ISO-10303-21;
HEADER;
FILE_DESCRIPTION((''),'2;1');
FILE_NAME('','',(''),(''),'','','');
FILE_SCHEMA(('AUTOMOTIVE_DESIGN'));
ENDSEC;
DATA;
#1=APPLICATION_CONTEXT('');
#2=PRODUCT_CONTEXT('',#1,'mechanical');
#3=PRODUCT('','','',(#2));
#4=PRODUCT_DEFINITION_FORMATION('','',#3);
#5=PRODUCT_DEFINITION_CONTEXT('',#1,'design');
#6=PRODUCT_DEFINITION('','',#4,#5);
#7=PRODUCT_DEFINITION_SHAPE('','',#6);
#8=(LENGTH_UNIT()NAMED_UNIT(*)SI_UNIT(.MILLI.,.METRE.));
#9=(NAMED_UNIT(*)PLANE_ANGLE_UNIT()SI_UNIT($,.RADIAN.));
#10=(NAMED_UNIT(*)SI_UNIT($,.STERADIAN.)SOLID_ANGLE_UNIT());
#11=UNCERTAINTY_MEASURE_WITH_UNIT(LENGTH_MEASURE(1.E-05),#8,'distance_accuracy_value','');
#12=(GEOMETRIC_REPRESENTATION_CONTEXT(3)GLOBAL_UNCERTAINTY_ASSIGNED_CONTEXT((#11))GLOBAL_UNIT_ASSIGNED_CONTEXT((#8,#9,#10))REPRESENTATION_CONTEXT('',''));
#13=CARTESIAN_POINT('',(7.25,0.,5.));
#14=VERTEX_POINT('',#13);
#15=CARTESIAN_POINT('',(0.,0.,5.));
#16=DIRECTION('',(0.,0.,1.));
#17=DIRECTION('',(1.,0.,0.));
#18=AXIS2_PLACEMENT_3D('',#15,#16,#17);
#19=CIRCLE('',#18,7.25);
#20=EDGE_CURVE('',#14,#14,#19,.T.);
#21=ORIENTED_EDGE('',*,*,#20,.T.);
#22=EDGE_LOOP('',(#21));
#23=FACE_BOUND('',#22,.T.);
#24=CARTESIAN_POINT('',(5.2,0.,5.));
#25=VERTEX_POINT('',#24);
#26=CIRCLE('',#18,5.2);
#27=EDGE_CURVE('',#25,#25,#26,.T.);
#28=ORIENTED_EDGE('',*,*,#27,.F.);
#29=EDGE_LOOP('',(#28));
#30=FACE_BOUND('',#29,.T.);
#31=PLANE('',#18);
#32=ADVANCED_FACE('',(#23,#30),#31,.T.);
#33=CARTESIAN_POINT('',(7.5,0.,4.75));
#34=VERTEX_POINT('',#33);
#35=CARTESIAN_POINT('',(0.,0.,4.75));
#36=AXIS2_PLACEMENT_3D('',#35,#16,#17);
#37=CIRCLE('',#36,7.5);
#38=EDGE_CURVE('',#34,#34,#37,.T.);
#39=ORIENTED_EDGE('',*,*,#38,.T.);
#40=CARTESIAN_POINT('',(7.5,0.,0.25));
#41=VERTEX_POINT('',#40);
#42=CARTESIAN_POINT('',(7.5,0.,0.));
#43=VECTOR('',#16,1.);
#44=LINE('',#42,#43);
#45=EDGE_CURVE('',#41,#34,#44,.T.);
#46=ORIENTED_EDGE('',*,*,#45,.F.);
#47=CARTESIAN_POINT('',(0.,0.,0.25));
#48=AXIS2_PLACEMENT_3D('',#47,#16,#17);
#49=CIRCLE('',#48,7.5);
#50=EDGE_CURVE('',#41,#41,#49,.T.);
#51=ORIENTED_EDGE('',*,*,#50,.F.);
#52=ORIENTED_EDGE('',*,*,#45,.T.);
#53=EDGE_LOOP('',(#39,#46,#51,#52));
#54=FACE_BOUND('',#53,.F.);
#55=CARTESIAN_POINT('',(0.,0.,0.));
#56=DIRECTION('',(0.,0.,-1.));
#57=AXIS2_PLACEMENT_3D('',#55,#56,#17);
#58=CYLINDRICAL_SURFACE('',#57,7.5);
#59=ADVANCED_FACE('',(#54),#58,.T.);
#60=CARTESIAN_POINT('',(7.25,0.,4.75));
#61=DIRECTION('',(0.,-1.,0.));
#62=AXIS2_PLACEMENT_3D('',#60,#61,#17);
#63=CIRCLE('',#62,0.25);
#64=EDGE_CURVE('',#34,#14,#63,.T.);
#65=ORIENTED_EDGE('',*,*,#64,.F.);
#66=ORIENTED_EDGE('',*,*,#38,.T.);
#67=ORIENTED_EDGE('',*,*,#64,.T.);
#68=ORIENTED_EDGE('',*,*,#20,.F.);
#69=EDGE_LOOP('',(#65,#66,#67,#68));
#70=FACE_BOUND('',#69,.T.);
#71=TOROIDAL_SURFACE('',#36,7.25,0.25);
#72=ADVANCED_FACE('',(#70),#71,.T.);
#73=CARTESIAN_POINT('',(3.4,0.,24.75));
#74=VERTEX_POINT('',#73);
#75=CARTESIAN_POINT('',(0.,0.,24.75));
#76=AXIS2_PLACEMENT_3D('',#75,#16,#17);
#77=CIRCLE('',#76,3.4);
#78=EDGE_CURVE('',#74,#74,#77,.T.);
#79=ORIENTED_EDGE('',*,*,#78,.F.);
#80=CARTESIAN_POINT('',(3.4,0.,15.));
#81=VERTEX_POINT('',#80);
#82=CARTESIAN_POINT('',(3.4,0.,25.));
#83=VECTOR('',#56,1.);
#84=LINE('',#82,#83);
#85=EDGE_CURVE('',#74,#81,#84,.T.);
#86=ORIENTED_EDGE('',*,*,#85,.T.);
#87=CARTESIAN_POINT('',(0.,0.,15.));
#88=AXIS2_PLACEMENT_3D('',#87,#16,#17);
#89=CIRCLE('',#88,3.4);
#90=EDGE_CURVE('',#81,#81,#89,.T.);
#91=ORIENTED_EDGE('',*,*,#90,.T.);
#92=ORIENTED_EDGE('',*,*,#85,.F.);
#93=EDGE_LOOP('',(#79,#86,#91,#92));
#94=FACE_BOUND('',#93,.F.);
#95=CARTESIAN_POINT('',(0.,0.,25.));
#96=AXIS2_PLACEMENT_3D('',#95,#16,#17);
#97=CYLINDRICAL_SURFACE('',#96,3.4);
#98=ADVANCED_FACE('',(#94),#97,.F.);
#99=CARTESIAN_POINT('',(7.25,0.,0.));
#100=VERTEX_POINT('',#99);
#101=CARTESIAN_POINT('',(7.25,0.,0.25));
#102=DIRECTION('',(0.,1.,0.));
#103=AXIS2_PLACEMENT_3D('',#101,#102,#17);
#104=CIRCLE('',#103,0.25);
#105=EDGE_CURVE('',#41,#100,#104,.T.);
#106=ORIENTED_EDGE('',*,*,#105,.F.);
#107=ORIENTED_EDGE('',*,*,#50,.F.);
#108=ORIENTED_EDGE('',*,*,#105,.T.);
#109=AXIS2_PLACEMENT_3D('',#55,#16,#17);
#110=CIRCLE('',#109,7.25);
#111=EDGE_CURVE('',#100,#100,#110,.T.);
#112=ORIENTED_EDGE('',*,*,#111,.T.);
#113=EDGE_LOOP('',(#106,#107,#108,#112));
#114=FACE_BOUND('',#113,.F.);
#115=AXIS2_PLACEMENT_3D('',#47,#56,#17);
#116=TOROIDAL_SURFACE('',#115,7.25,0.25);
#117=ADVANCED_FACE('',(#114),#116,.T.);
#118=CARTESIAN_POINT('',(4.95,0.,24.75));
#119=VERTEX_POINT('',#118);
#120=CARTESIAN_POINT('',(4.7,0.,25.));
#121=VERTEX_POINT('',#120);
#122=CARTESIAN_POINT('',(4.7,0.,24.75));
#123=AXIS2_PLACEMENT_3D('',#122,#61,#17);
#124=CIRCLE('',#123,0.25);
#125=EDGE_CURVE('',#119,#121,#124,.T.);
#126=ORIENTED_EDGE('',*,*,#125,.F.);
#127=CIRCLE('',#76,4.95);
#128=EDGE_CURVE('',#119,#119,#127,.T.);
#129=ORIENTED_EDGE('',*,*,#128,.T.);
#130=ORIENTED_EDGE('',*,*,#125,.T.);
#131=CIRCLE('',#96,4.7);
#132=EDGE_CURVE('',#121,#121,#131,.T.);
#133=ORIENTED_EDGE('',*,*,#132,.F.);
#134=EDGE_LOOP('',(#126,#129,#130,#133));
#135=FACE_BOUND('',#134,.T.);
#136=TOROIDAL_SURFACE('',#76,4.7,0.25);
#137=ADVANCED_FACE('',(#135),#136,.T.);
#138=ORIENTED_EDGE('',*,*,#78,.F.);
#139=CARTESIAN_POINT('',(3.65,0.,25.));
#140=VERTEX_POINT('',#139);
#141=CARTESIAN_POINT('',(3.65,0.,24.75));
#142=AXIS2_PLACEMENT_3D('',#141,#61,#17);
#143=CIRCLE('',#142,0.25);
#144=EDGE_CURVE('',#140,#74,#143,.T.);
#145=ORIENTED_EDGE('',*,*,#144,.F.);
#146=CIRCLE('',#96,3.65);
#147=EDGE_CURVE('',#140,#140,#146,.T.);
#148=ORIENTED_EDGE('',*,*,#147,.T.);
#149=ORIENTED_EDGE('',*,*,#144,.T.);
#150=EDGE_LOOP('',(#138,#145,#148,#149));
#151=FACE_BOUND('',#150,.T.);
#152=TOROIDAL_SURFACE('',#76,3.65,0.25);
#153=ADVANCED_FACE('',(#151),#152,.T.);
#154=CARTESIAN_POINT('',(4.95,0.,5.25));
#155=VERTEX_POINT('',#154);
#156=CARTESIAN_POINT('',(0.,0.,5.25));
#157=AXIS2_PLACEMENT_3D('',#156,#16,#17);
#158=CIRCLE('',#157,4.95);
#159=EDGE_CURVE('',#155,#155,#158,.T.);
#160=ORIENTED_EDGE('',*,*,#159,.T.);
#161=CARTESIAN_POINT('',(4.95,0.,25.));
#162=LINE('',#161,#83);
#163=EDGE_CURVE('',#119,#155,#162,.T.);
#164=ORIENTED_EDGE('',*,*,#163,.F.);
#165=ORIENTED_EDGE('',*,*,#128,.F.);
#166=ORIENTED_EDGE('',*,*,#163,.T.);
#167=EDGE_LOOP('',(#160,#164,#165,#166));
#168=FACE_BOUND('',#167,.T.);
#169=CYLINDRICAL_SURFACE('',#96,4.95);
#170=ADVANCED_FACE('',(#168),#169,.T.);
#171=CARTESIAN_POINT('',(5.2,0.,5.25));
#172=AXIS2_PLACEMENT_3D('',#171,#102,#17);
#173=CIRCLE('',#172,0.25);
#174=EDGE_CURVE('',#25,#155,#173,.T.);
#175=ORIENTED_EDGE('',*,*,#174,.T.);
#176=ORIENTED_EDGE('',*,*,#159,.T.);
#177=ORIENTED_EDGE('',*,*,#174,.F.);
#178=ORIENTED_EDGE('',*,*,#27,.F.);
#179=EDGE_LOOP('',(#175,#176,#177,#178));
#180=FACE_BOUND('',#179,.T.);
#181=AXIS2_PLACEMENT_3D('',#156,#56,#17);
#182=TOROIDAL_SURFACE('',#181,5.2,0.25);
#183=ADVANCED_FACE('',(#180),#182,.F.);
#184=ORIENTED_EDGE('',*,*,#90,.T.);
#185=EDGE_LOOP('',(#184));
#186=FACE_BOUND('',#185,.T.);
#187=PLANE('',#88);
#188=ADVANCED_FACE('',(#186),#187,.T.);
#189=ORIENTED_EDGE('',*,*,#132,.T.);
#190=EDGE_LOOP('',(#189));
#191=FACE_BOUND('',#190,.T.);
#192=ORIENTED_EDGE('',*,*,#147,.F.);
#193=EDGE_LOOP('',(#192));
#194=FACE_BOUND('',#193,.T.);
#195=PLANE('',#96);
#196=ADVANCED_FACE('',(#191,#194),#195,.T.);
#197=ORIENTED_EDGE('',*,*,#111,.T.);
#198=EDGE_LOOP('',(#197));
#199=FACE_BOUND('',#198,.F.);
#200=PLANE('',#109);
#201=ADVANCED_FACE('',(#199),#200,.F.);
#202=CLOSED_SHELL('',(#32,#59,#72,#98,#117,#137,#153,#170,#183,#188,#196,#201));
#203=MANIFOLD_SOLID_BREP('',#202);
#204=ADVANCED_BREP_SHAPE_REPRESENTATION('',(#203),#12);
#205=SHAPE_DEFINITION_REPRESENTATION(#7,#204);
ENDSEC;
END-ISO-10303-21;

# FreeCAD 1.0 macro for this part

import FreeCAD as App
import Part
import Sketcher

V = App.Vector
Q = App.Units.Quantity


def edges_at(feature, points):
    """Names of the edges that pass closest to the given points."""
    edges = feature.Shape.Edges
    near = lambda p: min(range(len(edges)), key=lambda i: edges[i].distToShape(Part.Vertex(*p))[0])
    return sorted({f"Edge{near(p) + 1}" for p in points})

doc = App.newDocument("Part")
body = doc.addObject("PartDesign::Body", "Body")

# Sketch on XY plane
sketch1 = body.newObject("Sketcher::SketchObject", "Sketch")
sketch1.AttachmentSupport = (doc.getObject("XY_Plane"), [""])
sketch1.MapMode = "FlatFace"
sketch1.addGeometry(Part.Circle(V(0, 0, 0), V(0, 0, 1), 8), False)
sketch1.addConstraint([
    Sketcher.Constraint("Coincident", 0, 3, -1, 1),
    Sketcher.Constraint("Diameter", 0, Q("15 mm")),
])
pad1 = body.newObject("PartDesign::Pad", "Pad")
pad1.Profile = sketch1
pad1.Length = 25

# Sketch on XY plane
sketch2 = body.newObject("Sketcher::SketchObject", "Sketch001")
sketch2.AttachmentSupport = (doc.getObject("XY_Plane"), [""])
sketch2.MapMode = "FlatFace"
sketch2.AttachmentOffset = App.Placement(V(0, 0, 25), App.Rotation())
sketch2.addGeometry([
    Part.Circle(V(0, 0, 0), V(0, 0, 1), 7.5),
    Part.Circle(V(0, 0, 0), V(0, 0, 1), 5),
], False)
sketch2.addConstraint([
    Sketcher.Constraint("Coincident", 0, 3, -1, 1),
    Sketcher.Constraint("Coincident", 1, 3, -1, 1),
    Sketcher.Constraint("Diameter", 0, Q("15 mm")),
    Sketcher.Constraint("Diameter", 1, Q("9.9 mm")),
])
pocket1 = body.newObject("PartDesign::Pocket", "Pocket")
pocket1.Profile = sketch2
pocket1.Length = 20

# Sketch on XY plane
sketch3 = body.newObject("Sketcher::SketchObject", "Sketch002")
sketch3.AttachmentSupport = (doc.getObject("XY_Plane"), [""])
sketch3.MapMode = "FlatFace"
sketch3.AttachmentOffset = App.Placement(V(0, 0, 25), App.Rotation())
sketch3.addGeometry(Part.Circle(V(0, 0, 0), V(0, 0, 1), 3.4), False)
sketch3.addConstraint([
    Sketcher.Constraint("Coincident", 0, 3, -1, 1),
    Sketcher.Constraint("Diameter", 0, Q("6.8 mm")),
])
pocket2 = body.newObject("PartDesign::Pocket", "Pocket001")
pocket2.Profile = sketch3
pocket2.Length = 10
doc.recompute()

fillet = body.newObject("PartDesign::Fillet", "Fillet")
fillet.Base = (pocket2, edges_at(pocket2, [
    (-7.5, 0, 5),
    (-7.5, 0, 0),
    (-4.95, 0, 25),
    (-3.4, 0, 25),
    (-4.95, 0, 5),
]))
fillet.Radius = 0.25

doc.recompute()
